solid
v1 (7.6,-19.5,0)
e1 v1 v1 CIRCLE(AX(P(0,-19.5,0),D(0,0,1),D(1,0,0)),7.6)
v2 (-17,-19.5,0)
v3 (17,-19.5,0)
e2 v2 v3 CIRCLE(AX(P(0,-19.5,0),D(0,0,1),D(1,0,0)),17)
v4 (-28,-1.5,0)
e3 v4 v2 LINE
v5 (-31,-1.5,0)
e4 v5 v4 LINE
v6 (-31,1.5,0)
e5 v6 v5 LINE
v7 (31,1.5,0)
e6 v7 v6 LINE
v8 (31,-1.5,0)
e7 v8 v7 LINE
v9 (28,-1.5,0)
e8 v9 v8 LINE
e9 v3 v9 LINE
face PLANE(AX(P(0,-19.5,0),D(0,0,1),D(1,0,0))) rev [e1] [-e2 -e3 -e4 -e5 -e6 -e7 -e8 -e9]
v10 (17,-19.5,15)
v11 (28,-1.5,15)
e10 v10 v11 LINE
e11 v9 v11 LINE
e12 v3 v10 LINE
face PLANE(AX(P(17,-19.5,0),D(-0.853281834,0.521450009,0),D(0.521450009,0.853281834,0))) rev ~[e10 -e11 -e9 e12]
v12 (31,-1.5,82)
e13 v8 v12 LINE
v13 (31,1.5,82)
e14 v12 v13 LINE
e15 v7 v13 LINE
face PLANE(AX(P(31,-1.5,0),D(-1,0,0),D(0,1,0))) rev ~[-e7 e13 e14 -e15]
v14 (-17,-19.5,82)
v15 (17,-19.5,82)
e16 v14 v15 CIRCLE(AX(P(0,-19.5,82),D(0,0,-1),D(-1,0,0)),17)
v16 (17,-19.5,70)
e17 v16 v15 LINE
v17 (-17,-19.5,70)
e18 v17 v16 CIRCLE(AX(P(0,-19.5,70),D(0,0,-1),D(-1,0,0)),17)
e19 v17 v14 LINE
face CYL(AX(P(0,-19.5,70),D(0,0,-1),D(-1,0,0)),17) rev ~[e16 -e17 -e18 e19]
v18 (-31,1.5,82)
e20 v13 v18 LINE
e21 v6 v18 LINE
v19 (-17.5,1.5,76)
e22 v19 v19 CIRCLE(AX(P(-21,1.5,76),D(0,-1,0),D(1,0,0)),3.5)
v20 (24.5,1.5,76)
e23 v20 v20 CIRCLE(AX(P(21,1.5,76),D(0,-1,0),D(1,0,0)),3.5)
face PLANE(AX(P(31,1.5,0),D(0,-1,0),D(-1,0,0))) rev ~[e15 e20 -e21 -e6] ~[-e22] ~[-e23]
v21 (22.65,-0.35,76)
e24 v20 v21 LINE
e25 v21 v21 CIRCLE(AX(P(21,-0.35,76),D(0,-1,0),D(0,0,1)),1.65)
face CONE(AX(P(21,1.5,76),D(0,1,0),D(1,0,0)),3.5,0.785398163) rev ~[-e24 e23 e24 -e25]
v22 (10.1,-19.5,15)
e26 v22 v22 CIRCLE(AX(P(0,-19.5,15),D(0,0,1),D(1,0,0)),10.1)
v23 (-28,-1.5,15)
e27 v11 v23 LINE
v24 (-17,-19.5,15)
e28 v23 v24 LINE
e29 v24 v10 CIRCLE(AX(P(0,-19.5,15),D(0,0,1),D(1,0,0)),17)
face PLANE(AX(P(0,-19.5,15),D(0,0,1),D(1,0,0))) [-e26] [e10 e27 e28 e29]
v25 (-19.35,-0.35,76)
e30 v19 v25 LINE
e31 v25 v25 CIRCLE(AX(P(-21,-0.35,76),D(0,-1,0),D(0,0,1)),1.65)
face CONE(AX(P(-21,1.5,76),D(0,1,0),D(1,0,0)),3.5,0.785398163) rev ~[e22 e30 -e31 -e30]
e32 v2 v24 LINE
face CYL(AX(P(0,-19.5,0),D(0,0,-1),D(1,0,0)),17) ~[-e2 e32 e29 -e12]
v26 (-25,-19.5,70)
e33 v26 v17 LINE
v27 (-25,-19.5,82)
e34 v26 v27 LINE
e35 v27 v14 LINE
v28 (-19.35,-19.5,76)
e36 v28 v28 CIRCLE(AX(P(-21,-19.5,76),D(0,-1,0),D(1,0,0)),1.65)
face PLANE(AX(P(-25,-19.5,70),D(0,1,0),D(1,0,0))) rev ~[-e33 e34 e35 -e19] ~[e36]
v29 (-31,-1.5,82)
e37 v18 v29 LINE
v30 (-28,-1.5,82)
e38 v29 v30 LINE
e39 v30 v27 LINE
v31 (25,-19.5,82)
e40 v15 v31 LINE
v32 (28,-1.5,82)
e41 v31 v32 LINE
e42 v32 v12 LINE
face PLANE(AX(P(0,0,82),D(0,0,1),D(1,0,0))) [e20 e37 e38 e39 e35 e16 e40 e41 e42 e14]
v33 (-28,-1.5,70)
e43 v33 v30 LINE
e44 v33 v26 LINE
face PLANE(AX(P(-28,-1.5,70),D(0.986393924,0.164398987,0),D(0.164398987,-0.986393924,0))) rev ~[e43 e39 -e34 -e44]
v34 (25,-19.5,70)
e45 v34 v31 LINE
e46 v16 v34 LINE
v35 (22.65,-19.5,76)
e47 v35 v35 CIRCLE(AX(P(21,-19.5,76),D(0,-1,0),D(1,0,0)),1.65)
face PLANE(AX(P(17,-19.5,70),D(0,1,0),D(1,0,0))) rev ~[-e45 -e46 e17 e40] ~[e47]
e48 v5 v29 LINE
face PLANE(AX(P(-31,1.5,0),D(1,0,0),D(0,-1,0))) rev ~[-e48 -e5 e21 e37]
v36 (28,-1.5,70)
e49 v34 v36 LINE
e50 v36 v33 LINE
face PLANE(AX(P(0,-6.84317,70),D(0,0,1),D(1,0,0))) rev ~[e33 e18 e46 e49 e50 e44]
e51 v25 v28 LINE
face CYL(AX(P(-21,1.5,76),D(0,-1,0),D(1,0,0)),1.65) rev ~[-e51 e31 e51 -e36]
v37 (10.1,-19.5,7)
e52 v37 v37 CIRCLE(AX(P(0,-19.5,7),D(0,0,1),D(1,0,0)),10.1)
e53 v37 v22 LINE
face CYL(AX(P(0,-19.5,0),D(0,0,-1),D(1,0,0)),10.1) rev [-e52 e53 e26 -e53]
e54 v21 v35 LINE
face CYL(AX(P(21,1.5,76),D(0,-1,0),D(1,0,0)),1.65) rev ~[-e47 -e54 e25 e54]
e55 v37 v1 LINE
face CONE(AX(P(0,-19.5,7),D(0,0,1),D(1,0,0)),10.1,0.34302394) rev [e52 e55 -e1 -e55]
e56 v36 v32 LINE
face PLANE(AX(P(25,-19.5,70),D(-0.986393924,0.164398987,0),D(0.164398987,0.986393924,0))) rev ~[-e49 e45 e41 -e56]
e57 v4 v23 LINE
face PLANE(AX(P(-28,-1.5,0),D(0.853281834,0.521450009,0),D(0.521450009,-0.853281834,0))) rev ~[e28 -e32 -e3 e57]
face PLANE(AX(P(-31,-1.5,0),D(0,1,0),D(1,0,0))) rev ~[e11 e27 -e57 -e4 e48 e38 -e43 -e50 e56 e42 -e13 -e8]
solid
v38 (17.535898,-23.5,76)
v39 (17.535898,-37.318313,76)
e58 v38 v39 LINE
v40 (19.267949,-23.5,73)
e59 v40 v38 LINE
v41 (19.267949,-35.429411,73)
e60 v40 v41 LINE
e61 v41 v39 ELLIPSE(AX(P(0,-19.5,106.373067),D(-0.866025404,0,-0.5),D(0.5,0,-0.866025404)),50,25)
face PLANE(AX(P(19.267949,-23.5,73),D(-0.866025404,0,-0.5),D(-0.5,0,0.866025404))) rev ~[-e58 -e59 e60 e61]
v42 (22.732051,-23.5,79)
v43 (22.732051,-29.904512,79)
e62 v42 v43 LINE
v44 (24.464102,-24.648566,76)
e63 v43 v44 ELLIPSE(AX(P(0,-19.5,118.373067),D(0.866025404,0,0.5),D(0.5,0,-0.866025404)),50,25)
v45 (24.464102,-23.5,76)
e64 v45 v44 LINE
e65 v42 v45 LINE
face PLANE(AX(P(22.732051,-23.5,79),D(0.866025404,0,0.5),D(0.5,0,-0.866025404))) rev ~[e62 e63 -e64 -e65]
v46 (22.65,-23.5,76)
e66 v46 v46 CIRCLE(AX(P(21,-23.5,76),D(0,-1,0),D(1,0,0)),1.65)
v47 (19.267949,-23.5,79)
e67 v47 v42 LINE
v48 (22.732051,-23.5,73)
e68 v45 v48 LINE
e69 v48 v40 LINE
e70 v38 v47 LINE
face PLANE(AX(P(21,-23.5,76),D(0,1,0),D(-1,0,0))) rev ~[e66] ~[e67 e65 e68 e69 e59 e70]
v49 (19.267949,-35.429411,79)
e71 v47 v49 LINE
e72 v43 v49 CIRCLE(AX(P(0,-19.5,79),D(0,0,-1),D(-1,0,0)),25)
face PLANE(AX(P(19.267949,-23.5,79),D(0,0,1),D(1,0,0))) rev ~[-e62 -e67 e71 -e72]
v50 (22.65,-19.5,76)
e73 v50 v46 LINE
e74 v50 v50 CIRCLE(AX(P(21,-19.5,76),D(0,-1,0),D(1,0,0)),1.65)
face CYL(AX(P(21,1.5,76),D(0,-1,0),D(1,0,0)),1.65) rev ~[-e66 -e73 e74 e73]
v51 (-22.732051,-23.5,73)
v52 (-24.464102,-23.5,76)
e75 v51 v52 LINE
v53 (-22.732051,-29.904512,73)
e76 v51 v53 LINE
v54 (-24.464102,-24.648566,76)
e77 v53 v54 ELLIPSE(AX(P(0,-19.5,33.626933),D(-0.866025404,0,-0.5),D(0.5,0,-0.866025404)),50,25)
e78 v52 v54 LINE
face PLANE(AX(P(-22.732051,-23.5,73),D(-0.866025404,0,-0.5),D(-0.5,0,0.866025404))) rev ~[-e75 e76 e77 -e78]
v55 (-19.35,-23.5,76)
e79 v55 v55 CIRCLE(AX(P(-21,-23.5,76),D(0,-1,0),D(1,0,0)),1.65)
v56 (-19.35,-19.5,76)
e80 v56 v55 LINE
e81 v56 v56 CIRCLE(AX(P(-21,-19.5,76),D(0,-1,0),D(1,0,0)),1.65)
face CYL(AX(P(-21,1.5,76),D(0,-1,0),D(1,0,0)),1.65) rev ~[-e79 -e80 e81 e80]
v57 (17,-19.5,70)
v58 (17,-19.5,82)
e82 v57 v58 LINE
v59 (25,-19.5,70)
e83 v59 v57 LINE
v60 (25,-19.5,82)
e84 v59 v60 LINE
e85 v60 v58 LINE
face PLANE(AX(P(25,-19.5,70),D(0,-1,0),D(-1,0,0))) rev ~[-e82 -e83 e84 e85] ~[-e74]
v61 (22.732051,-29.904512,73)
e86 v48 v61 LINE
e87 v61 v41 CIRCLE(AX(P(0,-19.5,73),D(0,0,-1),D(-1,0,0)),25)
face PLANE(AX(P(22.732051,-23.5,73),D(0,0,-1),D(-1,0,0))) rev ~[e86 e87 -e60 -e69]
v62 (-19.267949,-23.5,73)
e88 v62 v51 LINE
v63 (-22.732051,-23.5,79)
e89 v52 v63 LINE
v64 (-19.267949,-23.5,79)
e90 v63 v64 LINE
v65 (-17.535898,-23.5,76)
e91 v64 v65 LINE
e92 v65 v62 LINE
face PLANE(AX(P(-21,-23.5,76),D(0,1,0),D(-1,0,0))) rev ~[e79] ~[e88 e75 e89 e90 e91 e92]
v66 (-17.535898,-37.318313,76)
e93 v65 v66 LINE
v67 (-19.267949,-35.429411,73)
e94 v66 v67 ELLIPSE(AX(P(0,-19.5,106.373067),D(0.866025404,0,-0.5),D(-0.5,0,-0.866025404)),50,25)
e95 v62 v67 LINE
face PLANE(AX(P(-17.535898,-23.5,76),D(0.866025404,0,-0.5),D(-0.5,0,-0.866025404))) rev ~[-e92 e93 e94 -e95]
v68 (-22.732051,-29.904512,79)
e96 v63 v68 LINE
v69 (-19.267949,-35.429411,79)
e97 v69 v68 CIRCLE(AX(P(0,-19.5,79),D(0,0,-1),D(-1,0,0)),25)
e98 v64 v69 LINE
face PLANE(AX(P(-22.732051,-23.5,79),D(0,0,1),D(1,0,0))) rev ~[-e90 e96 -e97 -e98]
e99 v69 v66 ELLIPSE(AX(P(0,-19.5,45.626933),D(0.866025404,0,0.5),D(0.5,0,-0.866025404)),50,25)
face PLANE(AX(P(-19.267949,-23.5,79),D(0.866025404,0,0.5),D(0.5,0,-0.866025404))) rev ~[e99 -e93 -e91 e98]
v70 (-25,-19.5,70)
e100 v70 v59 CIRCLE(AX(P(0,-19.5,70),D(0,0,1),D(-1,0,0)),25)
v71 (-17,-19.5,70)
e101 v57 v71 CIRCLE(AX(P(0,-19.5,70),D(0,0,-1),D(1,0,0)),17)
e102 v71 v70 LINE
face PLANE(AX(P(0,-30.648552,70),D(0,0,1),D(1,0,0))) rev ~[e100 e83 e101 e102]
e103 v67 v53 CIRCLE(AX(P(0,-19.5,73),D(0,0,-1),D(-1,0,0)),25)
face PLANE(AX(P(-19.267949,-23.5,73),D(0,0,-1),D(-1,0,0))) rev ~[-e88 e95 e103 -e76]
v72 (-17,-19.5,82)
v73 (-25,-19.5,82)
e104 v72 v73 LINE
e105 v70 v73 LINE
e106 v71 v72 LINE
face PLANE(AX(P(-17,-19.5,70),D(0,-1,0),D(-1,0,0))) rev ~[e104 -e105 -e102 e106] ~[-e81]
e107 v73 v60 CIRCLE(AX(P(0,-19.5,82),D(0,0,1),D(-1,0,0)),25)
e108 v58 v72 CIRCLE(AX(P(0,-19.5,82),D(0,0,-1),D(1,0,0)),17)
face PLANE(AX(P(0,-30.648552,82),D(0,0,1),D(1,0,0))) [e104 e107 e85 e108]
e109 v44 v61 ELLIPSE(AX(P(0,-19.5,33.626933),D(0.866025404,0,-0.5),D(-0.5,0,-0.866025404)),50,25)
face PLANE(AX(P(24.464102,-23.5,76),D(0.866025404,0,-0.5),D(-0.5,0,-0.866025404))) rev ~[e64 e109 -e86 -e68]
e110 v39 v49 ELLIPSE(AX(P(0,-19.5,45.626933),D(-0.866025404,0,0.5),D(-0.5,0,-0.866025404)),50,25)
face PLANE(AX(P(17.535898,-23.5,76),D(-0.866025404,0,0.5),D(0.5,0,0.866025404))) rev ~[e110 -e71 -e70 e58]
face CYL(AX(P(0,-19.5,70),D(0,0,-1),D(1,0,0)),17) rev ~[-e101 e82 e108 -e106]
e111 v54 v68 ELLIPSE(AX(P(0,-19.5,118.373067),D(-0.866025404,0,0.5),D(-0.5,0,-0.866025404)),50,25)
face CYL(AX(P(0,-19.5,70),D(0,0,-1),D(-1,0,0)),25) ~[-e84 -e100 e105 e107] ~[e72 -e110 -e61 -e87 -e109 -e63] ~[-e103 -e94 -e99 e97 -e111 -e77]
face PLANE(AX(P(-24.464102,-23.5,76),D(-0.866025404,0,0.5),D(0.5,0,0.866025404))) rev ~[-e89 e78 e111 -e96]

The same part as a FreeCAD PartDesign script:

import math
import FreeCAD as App
import Part
import Sketcher
Q = App.Units.Quantity

doc = App.newDocument("Part")
body = doc.addObject("PartDesign::Body", "Body")

sketch1 = body.newObject("Sketcher::SketchObject", "Sketch")
sketch1.AttachmentSupport = (doc.getObject("XY_Plane"), [""])
sketch1.MapMode = "FlatFace"
sketch1.addGeometry([
    Part.LineSegment(App.Vector(31, -1.5, 0), App.Vector(31, 1.5, 0)),
    Part.LineSegment(App.Vector(31, 1.5, 0), App.Vector(-31, 1.5, 0)),
    Part.LineSegment(App.Vector(-31, 1.5, 0), App.Vector(-31, -1.5, 0)),
    Part.LineSegment(App.Vector(-31, -1.5, 0), App.Vector(31, -1.5, 0)),
], False)
sketch1.addConstraint([
    Sketcher.Constraint("Coincident", 0, 2, 1, 1),
    Sketcher.Constraint("Coincident", 1, 2, 2, 1),
    Sketcher.Constraint("Coincident", 2, 2, 3, 1),
    Sketcher.Constraint("Coincident", 3, 2, 0, 1),
    Sketcher.Constraint("Vertical", 0),
    Sketcher.Constraint("Horizontal", 1),
    Sketcher.Constraint("Vertical", 2),
    Sketcher.Constraint("Horizontal", 3),
    Sketcher.Constraint("Symmetric", 0, 2, 2, 2, -1, 1),
    Sketcher.Constraint("DistanceX", 1, 2, 1, 1, 62.0),
    Sketcher.Constraint("DistanceY", 0, 1, 0, 2, 3.0),
])
pad1 = body.newObject("PartDesign::Pad", "Pad")
pad1.Profile = sketch1
pad1.Length = 82

sketch2 = body.newObject("Sketcher::SketchObject", "Sketch001")
sketch2.AttachmentSupport = (doc.getObject("XY_Plane"), [""])
sketch2.MapMode = "FlatFace"
sketch2.AttachmentOffset = App.Placement(App.Vector(0, 0, 70), App.Rotation())
sketch2.addGeometry([
    Part.LineSegment(App.Vector(28, -1.5, 0), App.Vector(-28, -1.5, 0)),
    Part.LineSegment(App.Vector(-28, -1.5, 0), App.Vector(-25, -19.5, 0)),
    Part.LineSegment(App.Vector(-25, -19.5, 0), App.Vector(-17, -19.5, 0)),
    Part.ArcOfCircle(Part.Circle(App.Vector(0, -19.5, 0), App.Vector(0, 0, 1), 17), math.radians(0), math.radians(180)),
    Part.LineSegment(App.Vector(17, -19.5, 0), App.Vector(25, -19.5, 0)),
    Part.LineSegment(App.Vector(25, -19.5, 0), App.Vector(28, -1.5, 0)),
], False)
sketch2.addConstraint([
    Sketcher.Constraint("Coincident", 0, 2, 1, 1),
    Sketcher.Constraint("Coincident", 1, 2, 2, 1),
    Sketcher.Constraint("Coincident", 2, 2, 3, 2),
    Sketcher.Constraint("Coincident", 3, 1, 4, 1),
    Sketcher.Constraint("Coincident", 4, 2, 5, 1),
    Sketcher.Constraint("Coincident", 5, 2, 0, 1),
    Sketcher.Constraint("Horizontal", 0),
    Sketcher.Constraint("Horizontal", 2),
    Sketcher.Constraint("Horizontal", 4),
    Sketcher.Constraint("Symmetric", 2, 2, 3, 1, -2),
    Sketcher.Constraint("Horizontal", 3, 3, 1, 2),
    Sketcher.Constraint("Equal", 2, 4),
    Sketcher.Constraint("Equal", 1, 5),
    Sketcher.Constraint("Radius", 3, 17.0),
    Sketcher.Constraint("DistanceX", 0, 2, 0, 1, 56.0),
    Sketcher.Constraint("DistanceX", 2, 1, 2, 2, 8.0),
    Sketcher.Constraint("DistanceY", 3, 3, 0, 2, 18.0),
    Sketcher.Constraint("DistanceY", 3, 3, -1, 1, 19.5),
])
pad2 = body.newObject("PartDesign::Pad", "Pad001")
pad2.Profile = sketch2
pad2.Length = 12

sketch3 = body.newObject("Sketcher::SketchObject", "Sketch002")
sketch3.AttachmentSupport = (doc.getObject("XZ_Plane"), [""])
sketch3.MapMode = "FlatFace"
sketch3.AttachmentOffset = App.Placement(App.Vector(0, 0, -1.5), App.Rotation())
sketch3.addGeometry([
    Part.Circle(App.Vector(21, 76, 0), App.Vector(0, 0, 1), 1.65),
    Part.Circle(App.Vector(-21, 76, 0), App.Vector(0, 0, 1), 1.65),
], False)
sketch3.addConstraint([
    Sketcher.Constraint("Equal", 0, 1),
    Sketcher.Constraint("Symmetric", 0, 3, 1, 3, -2),
    Sketcher.Constraint("Diameter", 0, 3.3),
    Sketcher.Constraint("DistanceX", -1, 1, 0, 3, 21.0),
    Sketcher.Constraint("DistanceY", -1, 1, 0, 3, 76.0),
])
doc.recompute()
hole = body.newObject("PartDesign::Hole", "Hole")
hole.Profile = sketch3
hole.ThreadType = "None"
hole.Diameter = 3.3
hole.DepthType = "ThroughAll"
hole.HoleCutType = "Countersink"
hole.HoleCutDiameter = 7
hole.HoleCutCountersinkAngle = 90
hole.Reversed = True

sketch4 = body.newObject("Sketcher::SketchObject", "Sketch003")
sketch4.AttachmentSupport = (doc.getObject("XY_Plane"), [""])
sketch4.MapMode = "FlatFace"
sketch4.addGeometry([
    Part.ArcOfCircle(Part.Circle(App.Vector(0, -19.5, 0), App.Vector(0, 0, 1), 17), math.radians(180), math.radians(360)),
    Part.LineSegment(App.Vector(17, -19.5, 0), App.Vector(28, -1.5, 0)),
    Part.LineSegment(App.Vector(28, -1.5, 0), App.Vector(-28, -1.5, 0)),
    Part.LineSegment(App.Vector(-28, -1.5, 0), App.Vector(-17, -19.5, 0)),
    Part.Circle(App.Vector(0, -19.5, 0), App.Vector(0, 0, 1), 10.1),
], False)
sketch4.addConstraint([
    Sketcher.Constraint("Coincident", 0, 2, 1, 1),
    Sketcher.Constraint("Coincident", 1, 2, 2, 1),
    Sketcher.Constraint("Coincident", 2, 2, 3, 1),
    Sketcher.Constraint("Coincident", 3, 2, 0, 1),
    Sketcher.Constraint("Horizontal", 2),
    Sketcher.Constraint("Coincident", 4, 3, 0, 3),
    Sketcher.Constraint("Symmetric", 0, 2, 3, 2, -2),
    Sketcher.Constraint("Horizontal", 4, 3, 0, 2),
    Sketcher.Constraint("Equal", 1, 3),
    Sketcher.Constraint("Radius", 0, 17.0),
    Sketcher.Constraint("Diameter", 4, 20.2),
    Sketcher.Constraint("DistanceX", 2, 2, 2, 1, 56.0),
    Sketcher.Constraint("DistanceY", 0, 2, 1, 2, 18.0),
    Sketcher.Constraint("DistanceY", 0, 3, -1, 1, 19.5),
])
pad3 = body.newObject("PartDesign::Pad", "Pad002")
pad3.Profile = sketch4
pad3.Length = 15

sketch5 = body.newObject("Sketcher::SketchObject", "Sketch004")
sketch5.AttachmentSupport = (doc.getObject("XZ_Plane"), [""])
sketch5.MapMode = "FlatFace"
sketch5.AttachmentOffset = App.Placement(App.Vector(0, 0, 19.5), App.Rotation())
sketch5.addGeometry([
    Part.LineSegment(App.Vector(10.1, 7, 0), App.Vector(7.6, 0, 0)),
    Part.LineSegment(App.Vector(7.6, 0, 0), App.Vector(10.1, 0, 0)),
    Part.LineSegment(App.Vector(10.1, 0, 0), App.Vector(10.1, 7, 0)),
], False)
sketch5.addConstraint([
    Sketcher.Constraint("Coincident", 0, 2, 1, 1),
    Sketcher.Constraint("Coincident", 1, 2, 2, 1),
    Sketcher.Constraint("Coincident", 2, 2, 0, 1),
    Sketcher.Constraint("Horizontal", 1),
    Sketcher.Constraint("Vertical", 2),
    Sketcher.Constraint("PointOnObject", 0, 2, -1),
    Sketcher.Constraint("DistanceY", 2, 1, 2, 2, 7.0),
    Sketcher.Constraint("DistanceX", 1, 1, 1, 2, 2.5),
    Sketcher.Constraint("DistanceX", -1, 1, 0, 2, 7.6),
])
revolution = body.newObject("PartDesign::Revolution", "Revolution")
revolution.Profile = sketch5
revolution.ReferenceAxis = (sketch5, ["V_Axis"])
revolution.Angle = 360
body2 = doc.addObject("PartDesign::Body", "Body001")

sketch6 = body2.newObject("Sketcher::SketchObject", "Sketch005")
sketch6.AttachmentSupport = (doc.getObject("XY_Plane001"), [""])
sketch6.MapMode = "FlatFace"
sketch6.AttachmentOffset = App.Placement(App.Vector(0, 0, 70), App.Rotation())
sketch6.addGeometry([
    Part.ArcOfCircle(Part.Circle(App.Vector(0, -19.5, 0), App.Vector(0, 0, 1), 25), math.radians(180), math.radians(360)),
    Part.LineSegment(App.Vector(25, -19.5, 0), App.Vector(17, -19.5, 0)),
    Part.ArcOfCircle(Part.Circle(App.Vector(0, -19.5, 0), App.Vector(0, 0, 1), 17), math.radians(180), math.radians(360)),
    Part.LineSegment(App.Vector(-17, -19.5, 0), App.Vector(-25, -19.5, 0)),
], False)
sketch6.addConstraint([
    Sketcher.Constraint("Coincident", 0, 2, 1, 1),
    Sketcher.Constraint("Coincident", 1, 2, 2, 2),
    Sketcher.Constraint("Coincident", 2, 1, 3, 1),
    Sketcher.Constraint("Coincident", 3, 2, 0, 1),
    Sketcher.Constraint("Horizontal", 1),
    Sketcher.Constraint("Horizontal", 3),
    Sketcher.Constraint("Coincident", 2, 3, 0, 3),
    Sketcher.Constraint("Symmetric", 1, 2, 2, 1, -2),
    Sketcher.Constraint("Horizontal", 2, 3, 0, 2),
    Sketcher.Constraint("Radius", 0, 25.0),
    Sketcher.Constraint("Radius", 2, 17.0),
    Sketcher.Constraint("DistanceY", 0, 3, -1, 1, 19.5),
])
pad4 = body2.newObject("PartDesign::Pad", "Pad003")
pad4.Profile = sketch6
pad4.Length = 12

sketch7 = body2.newObject("Sketcher::SketchObject", "Sketch006")
sketch7.AttachmentSupport = (doc.getObject("XZ_Plane001"), [""])
sketch7.MapMode = "FlatFace"
sketch7.AttachmentOffset = App.Placement(App.Vector(0, 0, -1.5), App.Rotation())
sketch7.addGeometry([
    Part.Circle(App.Vector(21, 76, 0), App.Vector(0, 0, 1), 1.65),
    Part.Circle(App.Vector(-21, 76, 0), App.Vector(0, 0, 1), 1.65),
], False)
sketch7.addConstraint([
    Sketcher.Constraint("Equal", 0, 1),
    Sketcher.Constraint("Symmetric", 0, 3, 1, 3, -2),
    Sketcher.Constraint("Diameter", 0, 3.3),
    Sketcher.Constraint("DistanceX", -1, 1, 0, 3, 21.0),
    Sketcher.Constraint("DistanceY", -1, 1, 0, 3, 76.0),
])
doc.recompute()
hole2 = body2.newObject("PartDesign::Hole", "Hole001")
hole2.Profile = sketch7
hole2.ThreadType = "None"
hole2.Diameter = 3.3
hole2.DepthType = "ThroughAll"
hole2.HoleCutType = "Countersink"
hole2.HoleCutDiameter = 7
hole2.HoleCutCountersinkAngle = 90
hole2.Reversed = True

sketch8 = body2.newObject("Sketcher::SketchObject", "Sketch007")
sketch8.AttachmentSupport = (doc.getObject("XZ_Plane001"), [""])
sketch8.MapMode = "FlatFace"
sketch8.AttachmentOffset = App.Placement(App.Vector(0, 0, 23.5), App.Rotation())
sketch8.addGeometry([
    Part.LineSegment(App.Vector(19.267949, 79, 0), App.Vector(22.732051, 79, 0)),
    Part.LineSegment(App.Vector(22.732051, 79, 0), App.Vector(24.464102, 76, 0)),
    Part.LineSegment(App.Vector(24.464102, 76, 0), App.Vector(22.732051, 73, 0)),
    Part.LineSegment(App.Vector(22.732051, 73, 0), App.Vector(19.267949, 73, 0)),
    Part.LineSegment(App.Vector(19.267949, 73, 0), App.Vector(17.535898, 76, 0)),
    Part.LineSegment(App.Vector(17.535898, 76, 0), App.Vector(19.267949, 79, 0)),
    Part.LineSegment(App.Vector(-19.267949, 79, 0), App.Vector(-17.535898, 76, 0)),
    Part.LineSegment(App.Vector(-17.535898, 76, 0), App.Vector(-19.267949, 73, 0)),
    Part.LineSegment(App.Vector(-19.267949, 73, 0), App.Vector(-22.732051, 73, 0)),
    Part.LineSegment(App.Vector(-22.732051, 73, 0), App.Vector(-24.464102, 76, 0)),
    Part.LineSegment(App.Vector(-24.464102, 76, 0), App.Vector(-22.732051, 79, 0)),
    Part.LineSegment(App.Vector(-22.732051, 79, 0), App.Vector(-19.267949, 79, 0)),
], False)
sketch8.addConstraint([
    Sketcher.Constraint("Coincident", 0, 2, 1, 1),
    Sketcher.Constraint("Coincident", 1, 2, 2, 1),
    Sketcher.Constraint("Coincident", 2, 2, 3, 1),
    Sketcher.Constraint("Coincident", 3, 2, 4, 1),
    Sketcher.Constraint("Coincident", 4, 2, 5, 1),
    Sketcher.Constraint("Coincident", 5, 2, 0, 1),
    Sketcher.Constraint("Coincident", 6, 2, 7, 1),
    Sketcher.Constraint("Coincident", 7, 2, 8, 1),
    Sketcher.Constraint("Coincident", 8, 2, 9, 1),
    Sketcher.Constraint("Coincident", 9, 2, 10, 1),
    Sketcher.Constraint("Coincident", 10, 2, 11, 1),
    Sketcher.Constraint("Coincident", 11, 2, 6, 1),
    Sketcher.Constraint("Horizontal", 0),
    Sketcher.Constraint("Horizontal", 3),
    Sketcher.Constraint("Horizontal", 8),
    Sketcher.Constraint("Horizontal", 11),
    Sketcher.Constraint("Symmetric", 4, 2, 6, 2, -2),
    Sketcher.Constraint("Symmetric", 3, 2, 7, 2, -2),
    Sketcher.Constraint("Symmetric", 1, 2, 9, 2, -2),
    Sketcher.Constraint("Symmetric", 0, 2, 10, 2, -2),
    Sketcher.Constraint("Parallel", 1, 4),
    Sketcher.Constraint("Parallel", 2, 5),
    Sketcher.Constraint("Parallel", 4, 6),
    Sketcher.Constraint("Parallel", 5, 7),
    Sketcher.Constraint("Parallel", 6, 9),
    Sketcher.Constraint("Horizontal", 1, 2, 4, 2),
    Sketcher.Constraint("Vertical", 0, 2, 2, 2),
    Sketcher.Constraint("Angle", 1, Q("-60 deg")),
    Sketcher.Constraint("DistanceY", -1, 1, 0, 2, 79.0),
    Sketcher.Constraint("DistanceY", -1, 1, 1, 2, 76.0),
    Sketcher.Constraint("DistanceX", 7, 2, 2, 2, 42.0),
    Sketcher.Constraint("DistanceX", 0, 1, 0, 2, 3.464102),
])
pocket1 = body2.newObject("PartDesign::Pocket", "Pocket")
pocket1.Profile = sketch8
pocket1.Length = 25
pocket1.Reversed = True

doc.recompute()
